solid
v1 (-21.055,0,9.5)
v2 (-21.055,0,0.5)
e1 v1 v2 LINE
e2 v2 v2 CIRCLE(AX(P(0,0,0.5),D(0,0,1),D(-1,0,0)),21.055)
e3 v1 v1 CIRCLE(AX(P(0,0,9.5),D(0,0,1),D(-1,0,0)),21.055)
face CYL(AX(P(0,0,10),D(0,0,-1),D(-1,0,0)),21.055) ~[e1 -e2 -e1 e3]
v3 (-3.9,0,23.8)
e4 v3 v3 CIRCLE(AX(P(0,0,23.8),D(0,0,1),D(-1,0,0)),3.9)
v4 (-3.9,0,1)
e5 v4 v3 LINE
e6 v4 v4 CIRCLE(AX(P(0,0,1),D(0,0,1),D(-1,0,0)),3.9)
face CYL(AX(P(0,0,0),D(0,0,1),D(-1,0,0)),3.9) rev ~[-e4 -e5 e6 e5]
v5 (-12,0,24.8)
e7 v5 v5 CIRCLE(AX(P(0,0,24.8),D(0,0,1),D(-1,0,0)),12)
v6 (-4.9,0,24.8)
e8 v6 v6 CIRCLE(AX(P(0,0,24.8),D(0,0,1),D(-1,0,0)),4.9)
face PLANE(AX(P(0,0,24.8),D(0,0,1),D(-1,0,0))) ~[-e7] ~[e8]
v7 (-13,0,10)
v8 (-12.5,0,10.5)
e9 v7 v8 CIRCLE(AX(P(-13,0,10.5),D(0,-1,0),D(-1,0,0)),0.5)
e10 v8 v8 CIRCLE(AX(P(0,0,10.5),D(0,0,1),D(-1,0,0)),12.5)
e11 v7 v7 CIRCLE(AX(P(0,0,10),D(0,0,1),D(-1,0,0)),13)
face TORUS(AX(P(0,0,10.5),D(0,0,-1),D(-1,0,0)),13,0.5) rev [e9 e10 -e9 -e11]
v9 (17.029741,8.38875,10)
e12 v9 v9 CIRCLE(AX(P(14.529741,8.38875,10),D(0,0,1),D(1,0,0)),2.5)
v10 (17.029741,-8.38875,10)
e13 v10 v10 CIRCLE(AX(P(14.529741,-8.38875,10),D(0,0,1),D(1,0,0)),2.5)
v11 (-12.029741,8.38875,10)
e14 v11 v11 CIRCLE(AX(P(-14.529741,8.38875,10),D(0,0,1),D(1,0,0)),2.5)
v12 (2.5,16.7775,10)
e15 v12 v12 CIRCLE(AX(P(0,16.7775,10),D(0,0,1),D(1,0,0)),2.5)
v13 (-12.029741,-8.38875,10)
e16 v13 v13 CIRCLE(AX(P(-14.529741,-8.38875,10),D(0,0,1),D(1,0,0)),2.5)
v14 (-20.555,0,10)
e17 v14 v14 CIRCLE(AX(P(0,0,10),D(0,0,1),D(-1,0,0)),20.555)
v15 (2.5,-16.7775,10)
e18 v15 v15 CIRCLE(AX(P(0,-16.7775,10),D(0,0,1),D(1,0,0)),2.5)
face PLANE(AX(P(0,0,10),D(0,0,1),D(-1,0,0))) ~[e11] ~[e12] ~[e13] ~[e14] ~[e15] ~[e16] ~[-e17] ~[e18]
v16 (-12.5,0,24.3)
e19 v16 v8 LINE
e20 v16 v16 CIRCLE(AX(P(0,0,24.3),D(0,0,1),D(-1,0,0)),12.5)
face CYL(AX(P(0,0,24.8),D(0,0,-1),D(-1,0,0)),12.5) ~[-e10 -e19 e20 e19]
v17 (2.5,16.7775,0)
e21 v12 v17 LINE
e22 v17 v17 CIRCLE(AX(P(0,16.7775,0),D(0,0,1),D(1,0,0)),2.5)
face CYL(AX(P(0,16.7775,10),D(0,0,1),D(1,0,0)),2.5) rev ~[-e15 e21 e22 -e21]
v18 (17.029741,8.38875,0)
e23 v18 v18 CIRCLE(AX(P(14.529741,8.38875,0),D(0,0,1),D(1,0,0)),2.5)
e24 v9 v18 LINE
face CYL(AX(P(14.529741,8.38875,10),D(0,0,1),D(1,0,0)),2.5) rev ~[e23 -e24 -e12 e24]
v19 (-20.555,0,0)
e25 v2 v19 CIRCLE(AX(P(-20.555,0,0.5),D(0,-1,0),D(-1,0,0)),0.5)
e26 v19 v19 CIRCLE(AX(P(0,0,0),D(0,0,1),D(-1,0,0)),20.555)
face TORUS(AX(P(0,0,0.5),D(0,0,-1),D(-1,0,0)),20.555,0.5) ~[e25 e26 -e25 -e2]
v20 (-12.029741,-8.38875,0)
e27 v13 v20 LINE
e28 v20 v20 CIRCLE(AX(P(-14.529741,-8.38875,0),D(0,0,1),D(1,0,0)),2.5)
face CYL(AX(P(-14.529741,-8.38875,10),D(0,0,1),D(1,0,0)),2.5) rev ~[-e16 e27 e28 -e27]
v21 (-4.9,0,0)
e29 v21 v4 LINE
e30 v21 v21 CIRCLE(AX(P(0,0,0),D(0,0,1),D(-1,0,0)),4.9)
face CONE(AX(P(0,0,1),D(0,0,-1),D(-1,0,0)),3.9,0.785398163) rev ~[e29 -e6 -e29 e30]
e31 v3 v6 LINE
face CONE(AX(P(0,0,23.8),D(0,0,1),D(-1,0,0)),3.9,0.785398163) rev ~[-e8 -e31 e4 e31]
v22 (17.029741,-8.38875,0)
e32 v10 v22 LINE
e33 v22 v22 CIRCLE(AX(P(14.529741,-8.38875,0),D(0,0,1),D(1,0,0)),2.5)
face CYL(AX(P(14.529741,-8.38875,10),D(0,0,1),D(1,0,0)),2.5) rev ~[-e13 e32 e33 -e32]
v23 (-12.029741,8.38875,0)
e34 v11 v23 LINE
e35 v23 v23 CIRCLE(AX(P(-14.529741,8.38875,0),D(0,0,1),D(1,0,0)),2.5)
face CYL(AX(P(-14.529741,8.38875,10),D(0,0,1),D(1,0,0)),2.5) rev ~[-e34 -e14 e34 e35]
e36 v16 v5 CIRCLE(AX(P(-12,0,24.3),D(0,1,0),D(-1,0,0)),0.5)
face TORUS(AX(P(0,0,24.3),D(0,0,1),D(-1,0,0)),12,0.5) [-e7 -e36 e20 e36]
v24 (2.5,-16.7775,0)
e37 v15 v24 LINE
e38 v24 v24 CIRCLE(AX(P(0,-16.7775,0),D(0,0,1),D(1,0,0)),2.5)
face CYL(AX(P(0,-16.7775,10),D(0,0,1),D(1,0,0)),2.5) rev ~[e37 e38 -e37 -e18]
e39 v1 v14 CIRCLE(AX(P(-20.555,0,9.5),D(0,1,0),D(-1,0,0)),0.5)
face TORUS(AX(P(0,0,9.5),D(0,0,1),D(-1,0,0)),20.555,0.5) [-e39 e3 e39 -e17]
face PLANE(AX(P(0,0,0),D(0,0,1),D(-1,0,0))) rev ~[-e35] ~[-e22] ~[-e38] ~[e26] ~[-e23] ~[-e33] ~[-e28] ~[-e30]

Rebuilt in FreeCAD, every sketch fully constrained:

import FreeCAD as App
import Part
import Sketcher
from FreeCAD import Vector
Q = App.Units.Quantity


def edges_at(feature, points):
    """Names of the edges that pass closest to the given points."""
    edges = feature.Shape.Edges
    near = lambda p: min(range(len(edges)), key=lambda i: edges[i].distToShape(Part.Vertex(*p))[0])
    return sorted({f"Edge{near(p) + 1}" for p in points})


def add_polygon(sketch, points):
    """Adds a closed chain of lines whose ends are joined by coincident constraints."""
    first, n = sketch.GeometryCount, len(points)
    for a, b in zip(points, points[1:] + points[:1]):
        sketch.addGeometry(Part.LineSegment(App.Vector(*a, 0), App.Vector(*b, 0)), False)
    for i in range(n):
        sketch.addConstraint(Sketcher.Constraint("Coincident", first + i, 2, first + (i + 1) % n, 1))

doc = App.newDocument("Part")
params = doc.addObject("Spreadsheet::Sheet", "Params")
for row, (alias, value) in enumerate([
    ("sketch1_height", "10 mm"),
    ("sketch1_width", "8.6 mm"),
    ("sketch1_height2", "24.8 mm"),
    ("revolution_angle", "360 deg"),
    ("sketch2_diameter", "5 mm"),
    ("pocket1_length", "25 mm"),
    ("fillet_radius", "0.5 mm"),
    ("chamfer_size", "1 mm"),
], start=1):
    params.set(f"A{row}", alias)
    params.set(f"B{row}", "=" + value)
    params.setAlias(f"B{row}", alias)

body = doc.addObject("PartDesign::Body", "Body")

# Sketch on XZ plane
sketch1 = body.newObject("Sketcher::SketchObject", "Sketch")
sketch1.AttachmentSupport = (doc.getObject("XZ_Plane"), [""])
sketch1.MapMode = "FlatFace"
add_polygon(sketch1, [(-21, 10), (-21, 0), (-4, 0), (-4, 25), (-12, 25), (-12, 10)])  # lines 0-5
sketch1.addConstraint(Sketcher.Constraint("Vertical", 0))
sketch1.addConstraint(Sketcher.Constraint("Horizontal", 1))
sketch1.addConstraint(Sketcher.Constraint("Vertical", 2))
sketch1.addConstraint(Sketcher.Constraint("Horizontal", 3))
sketch1.addConstraint(Sketcher.Constraint("Vertical", 4))
sketch1.addConstraint(Sketcher.Constraint("Horizontal", 5))
sketch1.addConstraint(Sketcher.Constraint("PointOnObject", 0, 2, -1))
sketch1.addConstraint(Sketcher.Constraint("DistanceY", 0, 2, 0, 1, Q("10 mm")))
sketch1.addConstraint(Sketcher.Constraint("DistanceX", 3, 2, 3, 1, Q("8.6 mm")))
sketch1.addConstraint(Sketcher.Constraint("DistanceY", 2, 1, 2, 2, Q("24.8 mm")))
sketch1.addConstraint(Sketcher.Constraint("DistanceX", 1, 2, -1, 1, Q("3.9 mm")))
sketch1.addConstraint(Sketcher.Constraint("DistanceX", 1, 1, 1, 2, Q("17.155 mm")))
sketch1.setExpression("Constraints[13]", "Params.sketch1_height")
sketch1.setExpression("Constraints[14]", "Params.sketch1_width")
sketch1.setExpression("Constraints[15]", "Params.sketch1_height2")
revolution = body.newObject("PartDesign::Revolution", "Revolution")
revolution.Profile = sketch1
revolution.ReferenceAxis = (sketch1, ["V_Axis"])
revolution.setExpression("Angle", "Params.revolution_angle")

# Sketch on XY plane
sketch2 = body.newObject("Sketcher::SketchObject", "Sketch001")
sketch2.AttachmentSupport = (doc.getObject("XY_Plane"), [""])
sketch2.MapMode = "FlatFace"
sketch2.AttachmentOffset = App.Placement(Vector(0, 0, 10), App.Rotation())
sketch2.addGeometry(Part.Circle(Vector(0, 16.8, 0), Vector(0, 0, 1), 2.5), False)
sketch2.addGeometry(Part.Circle(Vector(-14.5, 8.4, 0), Vector(0, 0, 1), 2.5), False)
sketch2.addGeometry(Part.Circle(Vector(-14.5, -8.4, 0), Vector(0, 0, 1), 2.5), False)
sketch2.addGeometry(Part.Circle(Vector(0, -16.8, 0), Vector(0, 0, 1), 2.5), False)
sketch2.addGeometry(Part.Circle(Vector(14.5, -8.4, 0), Vector(0, 0, 1), 2.5), False)
sketch2.addGeometry(Part.Circle(Vector(14.5, 8.4, 0), Vector(0, 0, 1), 2.5), False)
sketch2.addConstraint(Sketcher.Constraint("Equal", 0, 1))
sketch2.addConstraint(Sketcher.Constraint("Equal", 1, 2))
sketch2.addConstraint(Sketcher.Constraint("Equal", 2, 3))
sketch2.addConstraint(Sketcher.Constraint("Equal", 3, 4))
sketch2.addConstraint(Sketcher.Constraint("Equal", 4, 5))
sketch2.addConstraint(Sketcher.Constraint("Symmetric", 0, 3, 3, 3, -1, 1))
sketch2.addConstraint(Sketcher.Constraint("Symmetric", 1, 3, 4, 3, -1, 1))
sketch2.addConstraint(Sketcher.Constraint("Symmetric", 2, 3, 5, 3, -1, 1))
sketch2.addConstraint(Sketcher.Constraint("Symmetric", 2, 3, 4, 3, -2))
sketch2.addConstraint(Sketcher.Constraint("PointOnObject", 0, 3, -2))
sketch2.addConstraint(Sketcher.Constraint("Diameter", 0, Q("5 mm")))
sketch2.addConstraint(Sketcher.Constraint("DistanceY", 3, 3, 0, 3, Q("33.555 mm")))
sketch2.addConstraint(Sketcher.Constraint("DistanceY", 2, 3, 1, 3, Q("16.7775 mm")))
sketch2.addConstraint(Sketcher.Constraint("DistanceX", 1, 3, -1, 1, Q("14.529741 mm")))
sketch2.setExpression("Constraints[10]", "Params.sketch2_diameter")
pocket1 = body.newObject("PartDesign::Pocket", "Pocket")
pocket1.Profile = sketch2
pocket1.setExpression("Length", "Params.pocket1_length")
doc.recompute()

fillet = body.newObject("PartDesign::Fillet", "Fillet")
fillet.Base = (pocket1, edges_at(pocket1, [
    (12.5, 0, 24.8),
    (21.055, 0, 10),
    (21.055, 0, 0),
    (12.5, 0, 10),
]))
fillet.setExpression("Radius", "Params.fillet_radius")
doc.recompute()

chamfer = body.newObject("PartDesign::Chamfer", "Chamfer")
chamfer.Base = (fillet, edges_at(fillet, [(3.9, 0, 24.8), (3.9, 0, 0)]))
chamfer.setExpression("Size", "Params.chamfer_size")

doc.recompute()
